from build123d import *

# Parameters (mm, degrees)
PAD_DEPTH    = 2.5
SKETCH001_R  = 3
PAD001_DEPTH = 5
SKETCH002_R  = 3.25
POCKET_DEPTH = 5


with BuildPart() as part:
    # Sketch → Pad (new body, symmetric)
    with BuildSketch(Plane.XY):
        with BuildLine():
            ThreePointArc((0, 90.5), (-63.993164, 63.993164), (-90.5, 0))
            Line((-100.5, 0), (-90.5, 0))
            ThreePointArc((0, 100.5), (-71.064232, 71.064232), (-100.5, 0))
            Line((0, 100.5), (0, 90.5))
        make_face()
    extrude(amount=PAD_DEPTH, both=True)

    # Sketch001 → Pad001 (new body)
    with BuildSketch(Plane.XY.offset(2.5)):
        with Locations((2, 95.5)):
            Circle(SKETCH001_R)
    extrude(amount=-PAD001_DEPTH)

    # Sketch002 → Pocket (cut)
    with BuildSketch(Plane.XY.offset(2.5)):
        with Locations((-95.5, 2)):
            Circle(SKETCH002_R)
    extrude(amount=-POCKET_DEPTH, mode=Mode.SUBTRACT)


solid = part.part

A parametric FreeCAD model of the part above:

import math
import FreeCAD as App
import Part
import Sketcher
Q = App.Units.Quantity

doc = App.newDocument("Part")
body = doc.addObject("PartDesign::Body", "Body")

# Sketch on XY plane
sketch1 = body.newObject("Sketcher::SketchObject", "Sketch")
sketch1.AttachmentSupport = (doc.getObject("XY_Plane"), [""])
sketch1.MapMode = "FlatFace"
sketch1.addGeometry([
    Part.ArcOfCircle(Part.Circle(App.Vector(0, 0, 0), App.Vector(0, 0, 1), 90), math.radians(90), math.radians(180)),
    Part.LineSegment(App.Vector(0, 90, 0), App.Vector(0, 100, 0)),
    Part.ArcOfCircle(Part.Circle(App.Vector(0, 0, 0), App.Vector(0, 0, 1), 100), math.radians(90), math.radians(180)),
    Part.LineSegment(App.Vector(-100, 0, 0), App.Vector(-90, 0, 0)),
], False)
sketch1.addConstraint([
    Sketcher.Constraint("Coincident", 0, 1, 1, 1),
    Sketcher.Constraint("Coincident", 1, 2, 2, 1),
    Sketcher.Constraint("Coincident", 2, 2, 3, 1),
    Sketcher.Constraint("Coincident", 3, 2, 0, 2),
    Sketcher.Constraint("Vertical", 1),
    Sketcher.Constraint("Horizontal", 3),
    Sketcher.Constraint("Coincident", 0, 3, -1, 1),
    Sketcher.Constraint("Coincident", 2, 3, -1, 1),
    Sketcher.Constraint("PointOnObject", 0, 1, -2),
    Sketcher.Constraint("PointOnObject", 2, 2, -1),
    Sketcher.Constraint("Radius", 0, Q("90.499999 mm")),
    Sketcher.Constraint("Radius", 2, Q("100.499998 mm")),
])
pad1 = body.newObject("PartDesign::Pad", "Pad")
pad1.Profile = sketch1
pad1.Length = 5
pad1.Midplane = True

# Sketch on XY plane
sketch2 = body.newObject("Sketcher::SketchObject", "Sketch001")
sketch2.AttachmentSupport = (doc.getObject("XY_Plane"), [""])
sketch2.MapMode = "FlatFace"
sketch2.AttachmentOffset = App.Placement(App.Vector(0, 0, 2.5), App.Rotation())
sketch2.addGeometry(Part.Circle(App.Vector(2, 95.5, 0), App.Vector(0, 0, 1), 3), False)
sketch2.addConstraint([
    Sketcher.Constraint("Diameter", 0, Q("6 mm")),
    Sketcher.Constraint("DistanceX", -1, 1, 0, 3, Q("2 mm")),
    Sketcher.Constraint("DistanceY", -1, 1, 0, 3, Q("95.5 mm")),
])
pad2 = body.newObject("PartDesign::Pad", "Pad001")
pad2.Profile = sketch2
pad2.Length = 5
pad2.Reversed = True

# Sketch on XY plane
sketch3 = body.newObject("Sketcher::SketchObject", "Sketch002")
sketch3.AttachmentSupport = (doc.getObject("XY_Plane"), [""])
sketch3.MapMode = "FlatFace"
sketch3.AttachmentOffset = App.Placement(App.Vector(0, 0, 2.5), App.Rotation())
sketch3.addGeometry(Part.Circle(App.Vector(-95.5, 2, 0), App.Vector(0, 0, 1), 3.2), False)
sketch3.addConstraint([
    Sketcher.Constraint("Diameter", 0, Q("6.5 mm")),
    Sketcher.Constraint("DistanceY", -1, 1, 0, 3, Q("2 mm")),
    Sketcher.Constraint("DistanceX", 0, 3, -1, 1, Q("95.5 mm")),
])
pocket1 = body.newObject("PartDesign::Pocket", "Pocket")
pocket1.Profile = sketch3
pocket1.Length = 5

doc.recompute()
